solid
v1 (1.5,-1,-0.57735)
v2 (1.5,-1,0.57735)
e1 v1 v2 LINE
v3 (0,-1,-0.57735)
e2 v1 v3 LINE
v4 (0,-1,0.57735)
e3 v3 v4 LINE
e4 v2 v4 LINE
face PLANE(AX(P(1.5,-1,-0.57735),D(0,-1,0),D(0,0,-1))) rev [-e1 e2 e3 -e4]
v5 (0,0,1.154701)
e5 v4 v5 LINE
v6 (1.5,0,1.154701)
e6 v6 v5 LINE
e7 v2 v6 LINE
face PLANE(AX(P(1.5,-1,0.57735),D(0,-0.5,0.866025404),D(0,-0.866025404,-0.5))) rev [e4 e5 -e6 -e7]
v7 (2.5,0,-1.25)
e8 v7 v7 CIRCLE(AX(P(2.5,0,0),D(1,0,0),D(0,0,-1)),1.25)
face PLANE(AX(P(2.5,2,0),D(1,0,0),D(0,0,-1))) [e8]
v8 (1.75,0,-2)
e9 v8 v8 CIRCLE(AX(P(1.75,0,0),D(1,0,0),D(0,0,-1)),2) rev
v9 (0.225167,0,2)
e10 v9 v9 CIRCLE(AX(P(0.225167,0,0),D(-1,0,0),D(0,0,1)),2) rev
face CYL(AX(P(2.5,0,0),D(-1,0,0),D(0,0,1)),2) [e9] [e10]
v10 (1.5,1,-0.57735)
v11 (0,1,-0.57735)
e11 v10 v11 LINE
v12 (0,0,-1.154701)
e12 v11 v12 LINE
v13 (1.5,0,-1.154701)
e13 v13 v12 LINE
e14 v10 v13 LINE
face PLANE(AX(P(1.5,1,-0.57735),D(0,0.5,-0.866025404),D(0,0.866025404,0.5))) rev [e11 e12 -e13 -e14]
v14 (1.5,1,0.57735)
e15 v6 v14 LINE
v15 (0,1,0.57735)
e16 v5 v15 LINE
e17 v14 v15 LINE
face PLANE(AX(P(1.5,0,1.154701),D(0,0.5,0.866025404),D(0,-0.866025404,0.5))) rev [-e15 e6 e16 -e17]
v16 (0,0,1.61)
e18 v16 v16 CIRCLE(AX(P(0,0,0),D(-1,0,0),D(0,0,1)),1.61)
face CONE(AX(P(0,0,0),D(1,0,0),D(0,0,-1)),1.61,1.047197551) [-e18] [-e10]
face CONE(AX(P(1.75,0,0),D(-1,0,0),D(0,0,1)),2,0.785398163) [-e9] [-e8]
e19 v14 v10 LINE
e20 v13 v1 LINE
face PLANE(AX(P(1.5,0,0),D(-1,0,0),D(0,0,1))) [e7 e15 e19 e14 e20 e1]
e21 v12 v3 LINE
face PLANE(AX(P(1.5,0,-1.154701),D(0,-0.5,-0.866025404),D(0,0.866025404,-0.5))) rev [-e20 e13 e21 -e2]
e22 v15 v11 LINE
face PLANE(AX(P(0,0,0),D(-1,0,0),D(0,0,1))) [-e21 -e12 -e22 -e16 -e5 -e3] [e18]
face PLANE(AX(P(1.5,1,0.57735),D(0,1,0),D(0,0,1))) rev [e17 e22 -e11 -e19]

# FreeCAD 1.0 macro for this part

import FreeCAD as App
import Part
import Sketcher
from FreeCAD import Vector
Q = App.Units.Quantity


def edges_at(feature, points):
    """Names of the edges that pass closest to the given points."""
    edges = feature.Shape.Edges
    near = lambda p: min(range(len(edges)), key=lambda i: edges[i].distToShape(Part.Vertex(*p))[0])
    return sorted({f"Edge{near(p) + 1}" for p in points})


def add_polygon(sketch, points):
    """Adds a closed chain of lines whose ends are joined by coincident constraints."""
    first, n = sketch.GeometryCount, len(points)
    for a, b in zip(points, points[1:] + points[:1]):
        sketch.addGeometry(Part.LineSegment(App.Vector(*a, 0), App.Vector(*b, 0)), False)
    for i in range(n):
        sketch.addConstraint(Sketcher.Constraint("Coincident", first + i, 2, first + (i + 1) % n, 1))

doc = App.newDocument("Part")
body = doc.addObject("PartDesign::Body", "Body")

# Sketch on XY plane
sketch1 = body.newObject("Sketcher::SketchObject", "Sketch")
sketch1.AttachmentSupport = (doc.getObject("XY_Plane"), [""])
sketch1.MapMode = "FlatFace"
add_polygon(sketch1, [(2.5, 2), (2.5, 0), (0, 0), (0, 2)])  # lines 0-3
sketch1.addConstraint([
    Sketcher.Constraint("Vertical", 0),
    Sketcher.Constraint("Horizontal", 1),
    Sketcher.Constraint("Vertical", 2),
    Sketcher.Constraint("Horizontal", 3),
    Sketcher.Constraint("Coincident", 1, 2, -1, 1),
    Sketcher.Constraint("DistanceY", 0, 2, 0, 1, 2.0),
    Sketcher.Constraint("DistanceX", 1, 2, 1, 1, 2.5),
])
revolution = body.newObject("PartDesign::Revolution", "Revolution")
revolution.Profile = sketch1
revolution.ReferenceAxis = (sketch1, ["H_Axis"])
revolution.Angle = 360

# Sketch on YZ plane
sketch2 = body.newObject("Sketcher::SketchObject", "Sketch001")
sketch2.AttachmentSupport = (doc.getObject("YZ_Plane"), [""])
sketch2.MapMode = "FlatFace"
add_polygon(sketch2, [(0, 1.2), (1, 0.6), (1, -0.6), (0, -1.2), (-1, -0.6), (-1, 0.6)])  # lines 0-5
sketch2.addConstraint([
    Sketcher.Constraint("Vertical", 1),
    Sketcher.Constraint("Vertical", 4),
    Sketcher.Constraint("Symmetric", 0, 2, 3, 2, -1, 1),
    Sketcher.Constraint("Symmetric", 2, 2, 5, 2, -1, 1),
    Sketcher.Constraint("PointOnObject", 2, 2, -2),
    Sketcher.Constraint("Parallel", 2, 5),
    Sketcher.Constraint("Horizontal", 1, 2, 3, 2),
    Sketcher.Constraint("Angle", 0, Q("-30 deg")),
    Sketcher.Constraint("DistanceX", -1, 1, 0, 2, 1.0),
    Sketcher.Constraint("DistanceY", 1, 2, 1, 1, 1.154701),
])
pocket1 = body.newObject("PartDesign::Pocket", "Pocket")
pocket1.Profile = sketch2
pocket1.Length = 1.5
pocket1.Reversed = True
doc.recompute()

chamfer = body.newObject("PartDesign::Chamfer", "Chamfer")
chamfer.Base = (pocket1, edges_at(pocket1, [(2.5, -2, 0)]))
chamfer.Size = 0.75
doc.recompute()

chamfer2 = body.newObject("PartDesign::Chamfer", "Chamfer001")
chamfer2.Base = (chamfer, edges_at(chamfer, [(0, -2, 0)]))
chamfer2.ChamferType = "Two distances"
chamfer2.Size = 0.39
chamfer2.Size2 = 0.225167
chamfer2.FlipDirection = True

doc.recompute()
